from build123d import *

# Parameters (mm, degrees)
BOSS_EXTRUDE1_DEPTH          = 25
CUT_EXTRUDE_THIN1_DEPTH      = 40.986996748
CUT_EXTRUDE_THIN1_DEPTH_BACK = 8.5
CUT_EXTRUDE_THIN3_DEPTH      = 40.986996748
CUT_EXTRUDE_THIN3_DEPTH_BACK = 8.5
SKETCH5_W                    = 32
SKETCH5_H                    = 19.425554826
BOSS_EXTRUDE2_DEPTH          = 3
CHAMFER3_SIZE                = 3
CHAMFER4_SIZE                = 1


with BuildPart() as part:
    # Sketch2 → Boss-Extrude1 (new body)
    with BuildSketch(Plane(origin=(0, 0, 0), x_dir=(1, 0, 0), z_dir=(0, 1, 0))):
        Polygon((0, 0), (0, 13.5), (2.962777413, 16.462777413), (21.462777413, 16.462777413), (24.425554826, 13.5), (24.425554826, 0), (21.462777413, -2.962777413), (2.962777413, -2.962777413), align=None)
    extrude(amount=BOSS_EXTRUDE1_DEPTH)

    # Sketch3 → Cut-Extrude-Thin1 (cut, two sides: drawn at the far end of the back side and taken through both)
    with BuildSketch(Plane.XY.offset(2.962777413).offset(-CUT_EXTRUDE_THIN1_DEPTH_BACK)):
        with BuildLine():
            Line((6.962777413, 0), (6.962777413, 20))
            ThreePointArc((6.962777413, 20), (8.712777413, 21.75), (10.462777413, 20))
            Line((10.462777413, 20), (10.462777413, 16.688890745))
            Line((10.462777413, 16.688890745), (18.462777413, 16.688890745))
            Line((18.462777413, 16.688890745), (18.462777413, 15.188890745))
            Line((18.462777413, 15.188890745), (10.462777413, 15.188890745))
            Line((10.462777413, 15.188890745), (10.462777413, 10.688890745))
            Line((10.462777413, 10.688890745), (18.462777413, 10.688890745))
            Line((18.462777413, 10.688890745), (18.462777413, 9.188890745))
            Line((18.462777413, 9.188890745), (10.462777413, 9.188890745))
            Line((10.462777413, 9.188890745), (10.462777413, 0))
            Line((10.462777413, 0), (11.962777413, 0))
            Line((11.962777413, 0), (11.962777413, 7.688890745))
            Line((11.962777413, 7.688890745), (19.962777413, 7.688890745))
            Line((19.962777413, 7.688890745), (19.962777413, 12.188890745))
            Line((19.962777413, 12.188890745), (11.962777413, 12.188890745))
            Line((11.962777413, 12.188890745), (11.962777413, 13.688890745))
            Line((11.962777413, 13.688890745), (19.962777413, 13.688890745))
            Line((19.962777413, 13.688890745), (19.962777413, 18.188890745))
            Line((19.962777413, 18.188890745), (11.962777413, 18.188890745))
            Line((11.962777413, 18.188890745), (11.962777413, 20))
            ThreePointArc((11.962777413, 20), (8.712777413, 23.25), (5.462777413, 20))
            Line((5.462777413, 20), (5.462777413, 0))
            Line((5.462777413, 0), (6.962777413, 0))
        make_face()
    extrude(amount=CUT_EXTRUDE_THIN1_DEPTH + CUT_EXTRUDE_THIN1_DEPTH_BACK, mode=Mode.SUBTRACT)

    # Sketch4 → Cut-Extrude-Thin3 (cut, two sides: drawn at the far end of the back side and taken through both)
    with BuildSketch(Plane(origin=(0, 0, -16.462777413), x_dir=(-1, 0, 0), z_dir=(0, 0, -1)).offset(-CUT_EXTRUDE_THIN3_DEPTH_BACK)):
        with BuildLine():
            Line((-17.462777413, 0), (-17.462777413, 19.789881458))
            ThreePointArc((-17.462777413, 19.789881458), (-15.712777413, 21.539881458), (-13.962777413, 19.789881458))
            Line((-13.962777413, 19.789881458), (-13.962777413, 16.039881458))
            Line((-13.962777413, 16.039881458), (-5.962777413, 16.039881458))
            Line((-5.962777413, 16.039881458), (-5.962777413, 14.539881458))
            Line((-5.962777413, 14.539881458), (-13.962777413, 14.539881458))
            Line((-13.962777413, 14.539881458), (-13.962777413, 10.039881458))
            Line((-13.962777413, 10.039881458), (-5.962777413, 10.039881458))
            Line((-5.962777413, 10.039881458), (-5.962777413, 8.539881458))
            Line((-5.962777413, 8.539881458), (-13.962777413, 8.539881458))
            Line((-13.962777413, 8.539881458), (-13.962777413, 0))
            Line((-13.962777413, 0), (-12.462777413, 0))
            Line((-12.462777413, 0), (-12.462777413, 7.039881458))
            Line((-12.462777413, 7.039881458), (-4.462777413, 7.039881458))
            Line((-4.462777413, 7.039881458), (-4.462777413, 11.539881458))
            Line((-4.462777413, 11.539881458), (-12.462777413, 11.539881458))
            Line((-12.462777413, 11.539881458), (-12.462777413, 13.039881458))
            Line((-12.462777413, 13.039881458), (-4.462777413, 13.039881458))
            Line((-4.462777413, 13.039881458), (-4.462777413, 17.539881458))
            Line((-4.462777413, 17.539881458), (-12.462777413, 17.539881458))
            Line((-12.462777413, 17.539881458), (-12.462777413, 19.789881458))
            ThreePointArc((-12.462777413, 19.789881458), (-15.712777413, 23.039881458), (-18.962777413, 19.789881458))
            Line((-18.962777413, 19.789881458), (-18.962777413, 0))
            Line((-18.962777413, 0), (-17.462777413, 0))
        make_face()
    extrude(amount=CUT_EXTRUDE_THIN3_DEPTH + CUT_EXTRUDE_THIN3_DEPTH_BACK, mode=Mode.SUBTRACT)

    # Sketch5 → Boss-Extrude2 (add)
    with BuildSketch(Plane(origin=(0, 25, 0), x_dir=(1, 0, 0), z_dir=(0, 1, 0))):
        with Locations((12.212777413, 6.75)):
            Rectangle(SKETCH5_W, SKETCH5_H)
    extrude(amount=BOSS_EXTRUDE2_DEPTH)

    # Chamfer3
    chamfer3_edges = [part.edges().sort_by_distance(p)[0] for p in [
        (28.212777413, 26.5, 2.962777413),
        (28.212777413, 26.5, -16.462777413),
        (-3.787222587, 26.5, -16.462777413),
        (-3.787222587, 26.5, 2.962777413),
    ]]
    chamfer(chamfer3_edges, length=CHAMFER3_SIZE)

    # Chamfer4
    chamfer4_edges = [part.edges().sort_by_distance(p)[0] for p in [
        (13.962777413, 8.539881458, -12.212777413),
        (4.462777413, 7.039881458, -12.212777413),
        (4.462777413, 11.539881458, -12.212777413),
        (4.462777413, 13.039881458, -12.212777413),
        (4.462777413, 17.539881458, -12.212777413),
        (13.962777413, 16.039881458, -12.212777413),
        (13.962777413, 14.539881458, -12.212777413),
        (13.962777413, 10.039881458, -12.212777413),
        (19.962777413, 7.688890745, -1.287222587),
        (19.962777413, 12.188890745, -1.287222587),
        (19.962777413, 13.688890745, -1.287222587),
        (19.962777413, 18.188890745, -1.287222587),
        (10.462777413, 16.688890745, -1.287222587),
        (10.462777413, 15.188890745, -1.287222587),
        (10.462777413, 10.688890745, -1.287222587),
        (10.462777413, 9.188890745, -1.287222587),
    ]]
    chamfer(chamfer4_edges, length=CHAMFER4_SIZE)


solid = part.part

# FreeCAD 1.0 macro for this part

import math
import FreeCAD as App
import Part
import Sketcher

V = App.Vector


def edges_at(feature, points):
    """Names of the edges that pass closest to the given points."""
    edges = feature.Shape.Edges
    near = lambda p: min(range(len(edges)), key=lambda i: edges[i].distToShape(Part.Vertex(*p))[0])
    return sorted({f"Edge{near(p) + 1}" for p in points})


def add_polygon(sketch, points):
    """Adds a closed chain of lines whose ends are joined by coincident constraints."""
    first, n = sketch.GeometryCount, len(points)
    for a, b in zip(points, points[1:] + points[:1]):
        sketch.addGeometry(Part.LineSegment(App.Vector(*a, 0), App.Vector(*b, 0)), False)
    for i in range(n):
        sketch.addConstraint(Sketcher.Constraint("Coincident", first + i, 2, first + (i + 1) % n, 1))

doc = App.newDocument("Part")
body = doc.addObject("PartDesign::Body", "Body")

# Sketch on XZ plane
sketch1 = doc.addObject("Sketcher::SketchObject", "Sketch")
body.addObject(sketch1)
sketch1.AttachmentSupport = (doc.XZ_Plane, [""])
sketch1.MapMode = "FlatFace"
add_polygon(sketch1, [(0, -13.5), (0, 0), (3, 3), (21.5, 3), (24.4, 0), (24.4, -13.5), (21.5, -16.5), (3, -16.5)])  # lines 0-7
sketch1.addConstraint([
    Sketcher.Constraint("Vertical", 0),
    Sketcher.Constraint("Horizontal", 2),
    Sketcher.Constraint("Vertical", 4),
    Sketcher.Constraint("Horizontal", 6),
    Sketcher.Constraint("Coincident", 0, 2, -1, 1),
    Sketcher.Constraint("PointOnObject", 3, 2, -1),
    Sketcher.Constraint("Perpendicular", 1, 3),
    Sketcher.Constraint("Perpendicular", 3, 5),
    Sketcher.Constraint("Perpendicular", 5, 7),
    Sketcher.Constraint("Horizontal", 4, 2, 7, 2),
    Sketcher.Constraint("Vertical", 2, 2, 5, 2),
    Sketcher.Constraint("Vertical", 1, 2, 6, 2),
    Sketcher.Constraint("DistanceX", 2, 1, 2, 2, 18.5),
    Sketcher.Constraint("DistanceY", 0, 1, 0, 2, 13.5),
    Sketcher.Constraint("Distance", 1, 4.19),
])
pad1 = doc.addObject("PartDesign::Pad", "Pad")
body.addObject(pad1)
pad1.Profile = sketch1
pad1.Length = 25
pad1.Reversed = True

# Sketch on XY plane
sketch2 = doc.addObject("Sketcher::SketchObject", "Sketch001")
body.addObject(sketch2)
sketch2.AttachmentSupport = (doc.XY_Plane, [""])
sketch2.MapMode = "FlatFace"
sketch2.AttachmentOffset = App.Placement(V(0, 0, 2.962777), App.Rotation())
sketch2.addGeometry([
    Part.LineSegment(V(7, 0, 0), V(7, 20, 0)),  # 0
    Part.ArcOfCircle(Part.Circle(V(8.7, 20, 0), V(0, 0, 1), 1.8), math.radians(0), math.radians(180)),  # 1
    Part.LineSegment(V(10.5, 20, 0), V(10.5, 16.7, 0)),  # 2
    Part.LineSegment(V(10.5, 16.7, 0), V(18.5, 16.7, 0)),  # 3
    Part.LineSegment(V(18.5, 16.7, 0), V(18.5, 15.2, 0)),  # 4
    Part.LineSegment(V(18.5, 15.2, 0), V(10.5, 15.2, 0)),  # 5
    Part.LineSegment(V(10.5, 15.2, 0), V(10.5, 10.7, 0)),  # 6
    Part.LineSegment(V(10.5, 10.7, 0), V(18.5, 10.7, 0)),  # 7
    Part.LineSegment(V(18.5, 10.7, 0), V(18.5, 9.2, 0)),  # 8
    Part.LineSegment(V(18.5, 9.2, 0), V(10.5, 9.2, 0)),  # 9
    Part.LineSegment(V(10.5, 9.2, 0), V(10.5, 0, 0)),  # 10
    Part.LineSegment(V(10.5, 0, 0), V(12, 0, 0)),  # 11
    Part.LineSegment(V(12, 0, 0), V(12, 7.7, 0)),  # 12
    Part.LineSegment(V(12, 7.7, 0), V(20, 7.7, 0)),  # 13
    Part.LineSegment(V(20, 7.7, 0), V(20, 12.2, 0)),  # 14
    Part.LineSegment(V(20, 12.2, 0), V(12, 12.2, 0)),  # 15
    Part.LineSegment(V(12, 12.2, 0), V(12, 13.7, 0)),  # 16
    Part.LineSegment(V(12, 13.7, 0), V(20, 13.7, 0)),  # 17
    Part.LineSegment(V(20, 13.7, 0), V(20, 18.2, 0)),  # 18
    Part.LineSegment(V(20, 18.2, 0), V(12, 18.2, 0)),  # 19
    Part.LineSegment(V(12, 18.2, 0), V(12, 20, 0)),  # 20
    Part.ArcOfCircle(Part.Circle(V(8.7, 20, 0), V(0, 0, 1), 3.2), math.radians(0), math.radians(180)),  # 21
    Part.LineSegment(V(5.5, 20, 0), V(5.5, 0, 0)),  # 22
    Part.LineSegment(V(5.5, 0, 0), V(7, 0, 0)),  # 23
], False)
sketch2.addConstraint([
    Sketcher.Constraint("Tangent", 0, 2, 1, 2),
    Sketcher.Constraint("Tangent", 1, 1, 2, 1),
    Sketcher.Constraint("Coincident", 2, 2, 3, 1),
    Sketcher.Constraint("Coincident", 3, 2, 4, 1),
    Sketcher.Constraint("Coincident", 4, 2, 5, 1),
    Sketcher.Constraint("Coincident", 5, 2, 6, 1),
    Sketcher.Constraint("Coincident", 6, 2, 7, 1),
    Sketcher.Constraint("Coincident", 7, 2, 8, 1),
    Sketcher.Constraint("Coincident", 8, 2, 9, 1),
    Sketcher.Constraint("Coincident", 9, 2, 10, 1),
    Sketcher.Constraint("Coincident", 10, 2, 11, 1),
    Sketcher.Constraint("Coincident", 11, 2, 12, 1),
    Sketcher.Constraint("Coincident", 12, 2, 13, 1),
    Sketcher.Constraint("Coincident", 13, 2, 14, 1),
    Sketcher.Constraint("Coincident", 14, 2, 15, 1),
    Sketcher.Constraint("Coincident", 15, 2, 16, 1),
    Sketcher.Constraint("Coincident", 16, 2, 17, 1),
    Sketcher.Constraint("Coincident", 17, 2, 18, 1),
    Sketcher.Constraint("Coincident", 18, 2, 19, 1),
    Sketcher.Constraint("Coincident", 19, 2, 20, 1),
    Sketcher.Constraint("Tangent", 20, 2, 21, 1),
    Sketcher.Constraint("Tangent", 21, 2, 22, 1),
    Sketcher.Constraint("Coincident", 22, 2, 23, 1),
    Sketcher.Constraint("Coincident", 23, 2, 0, 1),
    Sketcher.Constraint("Vertical", 0),
    Sketcher.Constraint("Vertical", 2),
    Sketcher.Constraint("Horizontal", 3),
    Sketcher.Constraint("Vertical", 4),
    Sketcher.Constraint("Horizontal", 5),
    Sketcher.Constraint("Vertical", 6),
    Sketcher.Constraint("Horizontal", 7),
    Sketcher.Constraint("Vertical", 8),
    Sketcher.Constraint("Horizontal", 9),
    Sketcher.Constraint("Vertical", 10),
    Sketcher.Constraint("Horizontal", 11),
    Sketcher.Constraint("Vertical", 12),
    Sketcher.Constraint("Horizontal", 13),
    Sketcher.Constraint("Vertical", 14),
    Sketcher.Constraint("Horizontal", 15),
    Sketcher.Constraint("Vertical", 16),
    Sketcher.Constraint("Horizontal", 17),
    Sketcher.Constraint("Vertical", 18),
    Sketcher.Constraint("Horizontal", 19),
    Sketcher.Constraint("Vertical", 20),
    Sketcher.Constraint("Vertical", 22),
    Sketcher.Constraint("Horizontal", 23),
    Sketcher.Constraint("Coincident", 21, 3, 1, 3),
    Sketcher.Constraint("PointOnObject", 10, 2, -1),
    Sketcher.Constraint("PointOnObject", 22, 2, -1),
    Sketcher.Constraint("Vertical", 2, 2, 5, 2),
    Sketcher.Constraint("Vertical", 4, 2, 7, 2),
    Sketcher.Constraint("Vertical", 6, 2, 9, 2),
    Sketcher.Constraint("Vertical", 12, 2, 15, 2),
    Sketcher.Constraint("Vertical", 14, 2, 17, 2),
    Sketcher.Constraint("Vertical", 16, 2, 19, 2),
    Sketcher.Constraint("Equal", 9, 13),
    Sketcher.Constraint("Equal", 23, 4),
    Sketcher.Constraint("Equal", 4, 8),
    Sketcher.Constraint("Equal", 6, 14),
    Sketcher.Constraint("Equal", 8, 16),
    Sketcher.Constraint("Equal", 14, 18),
    Sketcher.Constraint("DistanceX", 3, 1, 3, 2, 8.0),
    Sketcher.Constraint("DistanceY", 0, 1, 0, 2, 20.0),
    Sketcher.Constraint("Radius", 1, 1.75),
    Sketcher.Constraint("Radius", 21, 3.25),
    Sketcher.Constraint("DistanceY", 6, 2, 6, 1, 4.5),
    Sketcher.Constraint("DistanceY", 12, 2, 6, 2, 3.0),
    Sketcher.Constraint("DistanceY", 2, 2, 2, 1, 3.311109),
    Sketcher.Constraint("DistanceX", -1, 1, 1, 3, 8.712777),
])
pocket1 = doc.addObject("PartDesign::Pocket", "Pocket")
body.addObject(pocket1)
pocket1.Profile = sketch2
pocket1.Type = "TwoLengths"
pocket1.Length = 40.986997
pocket1.Length2 = 8.5
pocket1.Reversed = True

# Sketch on XY plane
sketch3 = doc.addObject("Sketcher::SketchObject", "Sketch002")
body.addObject(sketch3)
sketch3.AttachmentSupport = (doc.XY_Plane, [""])
sketch3.MapMode = "FlatFace"
sketch3.AttachmentOffset = App.Placement(V(0, 0, -16.462777), App.Rotation())
sketch3.addGeometry([
    Part.LineSegment(V(17.5, 0, 0), V(17.5, 19.8, 0)),  # 0
    Part.ArcOfCircle(Part.Circle(V(15.7, 19.8, 0), V(0, 0, 1), 1.8), math.radians(0), math.radians(180)),  # 1
    Part.LineSegment(V(14, 19.8, 0), V(14, 16, 0)),  # 2
    Part.LineSegment(V(14, 16, 0), V(6, 16, 0)),  # 3
    Part.LineSegment(V(6, 16, 0), V(6, 14.5, 0)),  # 4
    Part.LineSegment(V(6, 14.5, 0), V(14, 14.5, 0)),  # 5
    Part.LineSegment(V(14, 14.5, 0), V(14, 10, 0)),  # 6
    Part.LineSegment(V(14, 10, 0), V(6, 10, 0)),  # 7
    Part.LineSegment(V(6, 10, 0), V(6, 8.5, 0)),  # 8
    Part.LineSegment(V(6, 8.5, 0), V(14, 8.5, 0)),  # 9
    Part.LineSegment(V(14, 8.5, 0), V(14, 0, 0)),  # 10
    Part.LineSegment(V(14, 0, 0), V(12.5, 0, 0)),  # 11
    Part.LineSegment(V(12.5, 0, 0), V(12.5, 7, 0)),  # 12
    Part.LineSegment(V(12.5, 7, 0), V(4.5, 7, 0)),  # 13
    Part.LineSegment(V(4.5, 7, 0), V(4.5, 11.5, 0)),  # 14
    Part.LineSegment(V(4.5, 11.5, 0), V(12.5, 11.5, 0)),  # 15
    Part.LineSegment(V(12.5, 11.5, 0), V(12.5, 13, 0)),  # 16
    Part.LineSegment(V(12.5, 13, 0), V(4.5, 13, 0)),  # 17
    Part.LineSegment(V(4.5, 13, 0), V(4.5, 17.5, 0)),  # 18
    Part.LineSegment(V(4.5, 17.5, 0), V(12.5, 17.5, 0)),  # 19
    Part.LineSegment(V(12.5, 17.5, 0), V(12.5, 19.8, 0)),  # 20
    Part.ArcOfCircle(Part.Circle(V(15.7, 19.8, 0), V(0, 0, 1), 3.2), math.radians(0), math.radians(180)),  # 21
    Part.LineSegment(V(19, 19.8, 0), V(19, 0, 0)),  # 22
    Part.LineSegment(V(19, 0, 0), V(17.5, 0, 0)),  # 23
], False)
sketch3.addConstraint([
    Sketcher.Constraint("Tangent", 0, 2, 1, 1),
    Sketcher.Constraint("Tangent", 1, 2, 2, 1),
    Sketcher.Constraint("Coincident", 2, 2, 3, 1),
    Sketcher.Constraint("Coincident", 3, 2, 4, 1),
    Sketcher.Constraint("Coincident", 4, 2, 5, 1),
    Sketcher.Constraint("Coincident", 5, 2, 6, 1),
    Sketcher.Constraint("Coincident", 6, 2, 7, 1),
    Sketcher.Constraint("Coincident", 7, 2, 8, 1),
    Sketcher.Constraint("Coincident", 8, 2, 9, 1),
    Sketcher.Constraint("Coincident", 9, 2, 10, 1),
    Sketcher.Constraint("Coincident", 10, 2, 11, 1),
    Sketcher.Constraint("Coincident", 11, 2, 12, 1),
    Sketcher.Constraint("Coincident", 12, 2, 13, 1),
    Sketcher.Constraint("Coincident", 13, 2, 14, 1),
    Sketcher.Constraint("Coincident", 14, 2, 15, 1),
    Sketcher.Constraint("Coincident", 15, 2, 16, 1),
    Sketcher.Constraint("Coincident", 16, 2, 17, 1),
    Sketcher.Constraint("Coincident", 17, 2, 18, 1),
    Sketcher.Constraint("Coincident", 18, 2, 19, 1),
    Sketcher.Constraint("Coincident", 19, 2, 20, 1),
    Sketcher.Constraint("Tangent", 20, 2, 21, 2),
    Sketcher.Constraint("Tangent", 21, 1, 22, 1),
    Sketcher.Constraint("Coincident", 22, 2, 23, 1),
    Sketcher.Constraint("Coincident", 23, 2, 0, 1),
    Sketcher.Constraint("Vertical", 0),
    Sketcher.Constraint("Vertical", 2),
    Sketcher.Constraint("Horizontal", 3),
    Sketcher.Constraint("Vertical", 4),
    Sketcher.Constraint("Horizontal", 5),
    Sketcher.Constraint("Vertical", 6),
    Sketcher.Constraint("Horizontal", 7),
    Sketcher.Constraint("Vertical", 8),
    Sketcher.Constraint("Horizontal", 9),
    Sketcher.Constraint("Vertical", 10),
    Sketcher.Constraint("Horizontal", 11),
    Sketcher.Constraint("Vertical", 12),
    Sketcher.Constraint("Horizontal", 13),
    Sketcher.Constraint("Vertical", 14),
    Sketcher.Constraint("Horizontal", 15),
    Sketcher.Constraint("Vertical", 16),
    Sketcher.Constraint("Horizontal", 17),
    Sketcher.Constraint("Vertical", 18),
    Sketcher.Constraint("Horizontal", 19),
    Sketcher.Constraint("Vertical", 20),
    Sketcher.Constraint("Vertical", 22),
    Sketcher.Constraint("Horizontal", 23),
    Sketcher.Constraint("Coincident", 21, 3, 1, 3),
    Sketcher.Constraint("PointOnObject", 10, 2, -1),
    Sketcher.Constraint("PointOnObject", 22, 2, -1),
    Sketcher.Constraint("Vertical", 2, 2, 5, 2),
    Sketcher.Constraint("Vertical", 4, 2, 7, 2),
    Sketcher.Constraint("Vertical", 6, 2, 9, 2),
    Sketcher.Constraint("Vertical", 12, 2, 15, 2),
    Sketcher.Constraint("Vertical", 14, 2, 17, 2),
    Sketcher.Constraint("Vertical", 16, 2, 19, 2),
    Sketcher.Constraint("Equal", 9, 13),
    Sketcher.Constraint("Equal", 23, 4),
    Sketcher.Constraint("Equal", 4, 8),
    Sketcher.Constraint("Equal", 6, 14),
    Sketcher.Constraint("Equal", 8, 16),
    Sketcher.Constraint("Equal", 14, 18),
    Sketcher.Constraint("DistanceX", 3, 2, 3, 1, 8.0),
    Sketcher.Constraint("Radius", 1, 1.75),
    Sketcher.Constraint("Radius", 21, 3.25),
    Sketcher.Constraint("DistanceY", 6, 2, 6, 1, 4.5),
    Sketcher.Constraint("DistanceY", 12, 2, 6, 2, 3.0),
    Sketcher.Constraint("DistanceY", 2, 2, 2, 1, 3.75),
    Sketcher.Constraint("DistanceY", 0, 1, 0, 2, 19.789881),
    Sketcher.Constraint("DistanceX", -1, 1, 1, 3, 15.712777),
])
pocket2 = doc.addObject("PartDesign::Pocket", "Pocket001")
body.addObject(pocket2)
pocket2.Profile = sketch3
pocket2.Type = "TwoLengths"
pocket2.Length = 40.986997
pocket2.Length2 = 8.5

# Sketch on XZ plane
sketch4 = doc.addObject("Sketcher::SketchObject", "Sketch003")
body.addObject(sketch4)
sketch4.AttachmentSupport = (doc.XZ_Plane, [""])
sketch4.MapMode = "FlatFace"
sketch4.AttachmentOffset = App.Placement(V(0, 0, -25), App.Rotation())
add_polygon(sketch4, [(-4, -16), (-4, 3), (28, 3), (28, -16)])  # lines 0-3
sketch4.addConstraint([
    Sketcher.Constraint("Vertical", 0),
    Sketcher.Constraint("Horizontal", 1),
    Sketcher.Constraint("Vertical", 2),
    Sketcher.Constraint("Horizontal", 3),
    Sketcher.Constraint("DistanceX", 1, 1, 1, 2, 32.0),
    Sketcher.Constraint("DistanceY", 0, 1, 0, 2, 19.425555),
    Sketcher.Constraint("DistanceX", 0, 2, -1, 1, 3.787223),
    Sketcher.Constraint("DistanceY", -1, 1, 0, 2, 2.962777),
])
pad2 = doc.addObject("PartDesign::Pad", "Pad001")
body.addObject(pad2)
pad2.Profile = sketch4
pad2.Length = 3
pad2.Reversed = True
doc.recompute()

chamfer = doc.addObject("PartDesign::Chamfer", "Chamfer")
body.addObject(chamfer)
chamfer.Base = (pad2, edges_at(pad2, [
    (28.213, 26.5, 2.963),
    (28.213, 26.5, -16.463),
    (-3.787, 26.5, -16.463),
    (-3.787, 26.5, 2.963),
]))
chamfer.Size = 3
doc.recompute()

chamfer2 = doc.addObject("PartDesign::Chamfer", "Chamfer001")
body.addObject(chamfer2)
chamfer2.Base = (chamfer, edges_at(chamfer, [
    (13.963, 8.54, -12.213),
    (4.463, 7.04, -12.213),
    (4.463, 11.54, -12.213),
    (4.463, 13.04, -12.213),
    (4.463, 17.54, -12.213),
    (13.963, 16.04, -12.213),
    (13.963, 14.54, -12.213),
    (13.963, 10.04, -12.213),
    (19.963, 7.689, -1.287),
    (19.963, 12.189, -1.287),
    (19.963, 13.689, -1.287),
    (19.963, 18.189, -1.287),
    (10.463, 16.689, -1.287),
    (10.463, 15.189, -1.287),
    (10.463, 10.689, -1.287),
    (10.463, 9.189, -1.287),
]))
chamfer2.Size = 1

doc.recompute()
